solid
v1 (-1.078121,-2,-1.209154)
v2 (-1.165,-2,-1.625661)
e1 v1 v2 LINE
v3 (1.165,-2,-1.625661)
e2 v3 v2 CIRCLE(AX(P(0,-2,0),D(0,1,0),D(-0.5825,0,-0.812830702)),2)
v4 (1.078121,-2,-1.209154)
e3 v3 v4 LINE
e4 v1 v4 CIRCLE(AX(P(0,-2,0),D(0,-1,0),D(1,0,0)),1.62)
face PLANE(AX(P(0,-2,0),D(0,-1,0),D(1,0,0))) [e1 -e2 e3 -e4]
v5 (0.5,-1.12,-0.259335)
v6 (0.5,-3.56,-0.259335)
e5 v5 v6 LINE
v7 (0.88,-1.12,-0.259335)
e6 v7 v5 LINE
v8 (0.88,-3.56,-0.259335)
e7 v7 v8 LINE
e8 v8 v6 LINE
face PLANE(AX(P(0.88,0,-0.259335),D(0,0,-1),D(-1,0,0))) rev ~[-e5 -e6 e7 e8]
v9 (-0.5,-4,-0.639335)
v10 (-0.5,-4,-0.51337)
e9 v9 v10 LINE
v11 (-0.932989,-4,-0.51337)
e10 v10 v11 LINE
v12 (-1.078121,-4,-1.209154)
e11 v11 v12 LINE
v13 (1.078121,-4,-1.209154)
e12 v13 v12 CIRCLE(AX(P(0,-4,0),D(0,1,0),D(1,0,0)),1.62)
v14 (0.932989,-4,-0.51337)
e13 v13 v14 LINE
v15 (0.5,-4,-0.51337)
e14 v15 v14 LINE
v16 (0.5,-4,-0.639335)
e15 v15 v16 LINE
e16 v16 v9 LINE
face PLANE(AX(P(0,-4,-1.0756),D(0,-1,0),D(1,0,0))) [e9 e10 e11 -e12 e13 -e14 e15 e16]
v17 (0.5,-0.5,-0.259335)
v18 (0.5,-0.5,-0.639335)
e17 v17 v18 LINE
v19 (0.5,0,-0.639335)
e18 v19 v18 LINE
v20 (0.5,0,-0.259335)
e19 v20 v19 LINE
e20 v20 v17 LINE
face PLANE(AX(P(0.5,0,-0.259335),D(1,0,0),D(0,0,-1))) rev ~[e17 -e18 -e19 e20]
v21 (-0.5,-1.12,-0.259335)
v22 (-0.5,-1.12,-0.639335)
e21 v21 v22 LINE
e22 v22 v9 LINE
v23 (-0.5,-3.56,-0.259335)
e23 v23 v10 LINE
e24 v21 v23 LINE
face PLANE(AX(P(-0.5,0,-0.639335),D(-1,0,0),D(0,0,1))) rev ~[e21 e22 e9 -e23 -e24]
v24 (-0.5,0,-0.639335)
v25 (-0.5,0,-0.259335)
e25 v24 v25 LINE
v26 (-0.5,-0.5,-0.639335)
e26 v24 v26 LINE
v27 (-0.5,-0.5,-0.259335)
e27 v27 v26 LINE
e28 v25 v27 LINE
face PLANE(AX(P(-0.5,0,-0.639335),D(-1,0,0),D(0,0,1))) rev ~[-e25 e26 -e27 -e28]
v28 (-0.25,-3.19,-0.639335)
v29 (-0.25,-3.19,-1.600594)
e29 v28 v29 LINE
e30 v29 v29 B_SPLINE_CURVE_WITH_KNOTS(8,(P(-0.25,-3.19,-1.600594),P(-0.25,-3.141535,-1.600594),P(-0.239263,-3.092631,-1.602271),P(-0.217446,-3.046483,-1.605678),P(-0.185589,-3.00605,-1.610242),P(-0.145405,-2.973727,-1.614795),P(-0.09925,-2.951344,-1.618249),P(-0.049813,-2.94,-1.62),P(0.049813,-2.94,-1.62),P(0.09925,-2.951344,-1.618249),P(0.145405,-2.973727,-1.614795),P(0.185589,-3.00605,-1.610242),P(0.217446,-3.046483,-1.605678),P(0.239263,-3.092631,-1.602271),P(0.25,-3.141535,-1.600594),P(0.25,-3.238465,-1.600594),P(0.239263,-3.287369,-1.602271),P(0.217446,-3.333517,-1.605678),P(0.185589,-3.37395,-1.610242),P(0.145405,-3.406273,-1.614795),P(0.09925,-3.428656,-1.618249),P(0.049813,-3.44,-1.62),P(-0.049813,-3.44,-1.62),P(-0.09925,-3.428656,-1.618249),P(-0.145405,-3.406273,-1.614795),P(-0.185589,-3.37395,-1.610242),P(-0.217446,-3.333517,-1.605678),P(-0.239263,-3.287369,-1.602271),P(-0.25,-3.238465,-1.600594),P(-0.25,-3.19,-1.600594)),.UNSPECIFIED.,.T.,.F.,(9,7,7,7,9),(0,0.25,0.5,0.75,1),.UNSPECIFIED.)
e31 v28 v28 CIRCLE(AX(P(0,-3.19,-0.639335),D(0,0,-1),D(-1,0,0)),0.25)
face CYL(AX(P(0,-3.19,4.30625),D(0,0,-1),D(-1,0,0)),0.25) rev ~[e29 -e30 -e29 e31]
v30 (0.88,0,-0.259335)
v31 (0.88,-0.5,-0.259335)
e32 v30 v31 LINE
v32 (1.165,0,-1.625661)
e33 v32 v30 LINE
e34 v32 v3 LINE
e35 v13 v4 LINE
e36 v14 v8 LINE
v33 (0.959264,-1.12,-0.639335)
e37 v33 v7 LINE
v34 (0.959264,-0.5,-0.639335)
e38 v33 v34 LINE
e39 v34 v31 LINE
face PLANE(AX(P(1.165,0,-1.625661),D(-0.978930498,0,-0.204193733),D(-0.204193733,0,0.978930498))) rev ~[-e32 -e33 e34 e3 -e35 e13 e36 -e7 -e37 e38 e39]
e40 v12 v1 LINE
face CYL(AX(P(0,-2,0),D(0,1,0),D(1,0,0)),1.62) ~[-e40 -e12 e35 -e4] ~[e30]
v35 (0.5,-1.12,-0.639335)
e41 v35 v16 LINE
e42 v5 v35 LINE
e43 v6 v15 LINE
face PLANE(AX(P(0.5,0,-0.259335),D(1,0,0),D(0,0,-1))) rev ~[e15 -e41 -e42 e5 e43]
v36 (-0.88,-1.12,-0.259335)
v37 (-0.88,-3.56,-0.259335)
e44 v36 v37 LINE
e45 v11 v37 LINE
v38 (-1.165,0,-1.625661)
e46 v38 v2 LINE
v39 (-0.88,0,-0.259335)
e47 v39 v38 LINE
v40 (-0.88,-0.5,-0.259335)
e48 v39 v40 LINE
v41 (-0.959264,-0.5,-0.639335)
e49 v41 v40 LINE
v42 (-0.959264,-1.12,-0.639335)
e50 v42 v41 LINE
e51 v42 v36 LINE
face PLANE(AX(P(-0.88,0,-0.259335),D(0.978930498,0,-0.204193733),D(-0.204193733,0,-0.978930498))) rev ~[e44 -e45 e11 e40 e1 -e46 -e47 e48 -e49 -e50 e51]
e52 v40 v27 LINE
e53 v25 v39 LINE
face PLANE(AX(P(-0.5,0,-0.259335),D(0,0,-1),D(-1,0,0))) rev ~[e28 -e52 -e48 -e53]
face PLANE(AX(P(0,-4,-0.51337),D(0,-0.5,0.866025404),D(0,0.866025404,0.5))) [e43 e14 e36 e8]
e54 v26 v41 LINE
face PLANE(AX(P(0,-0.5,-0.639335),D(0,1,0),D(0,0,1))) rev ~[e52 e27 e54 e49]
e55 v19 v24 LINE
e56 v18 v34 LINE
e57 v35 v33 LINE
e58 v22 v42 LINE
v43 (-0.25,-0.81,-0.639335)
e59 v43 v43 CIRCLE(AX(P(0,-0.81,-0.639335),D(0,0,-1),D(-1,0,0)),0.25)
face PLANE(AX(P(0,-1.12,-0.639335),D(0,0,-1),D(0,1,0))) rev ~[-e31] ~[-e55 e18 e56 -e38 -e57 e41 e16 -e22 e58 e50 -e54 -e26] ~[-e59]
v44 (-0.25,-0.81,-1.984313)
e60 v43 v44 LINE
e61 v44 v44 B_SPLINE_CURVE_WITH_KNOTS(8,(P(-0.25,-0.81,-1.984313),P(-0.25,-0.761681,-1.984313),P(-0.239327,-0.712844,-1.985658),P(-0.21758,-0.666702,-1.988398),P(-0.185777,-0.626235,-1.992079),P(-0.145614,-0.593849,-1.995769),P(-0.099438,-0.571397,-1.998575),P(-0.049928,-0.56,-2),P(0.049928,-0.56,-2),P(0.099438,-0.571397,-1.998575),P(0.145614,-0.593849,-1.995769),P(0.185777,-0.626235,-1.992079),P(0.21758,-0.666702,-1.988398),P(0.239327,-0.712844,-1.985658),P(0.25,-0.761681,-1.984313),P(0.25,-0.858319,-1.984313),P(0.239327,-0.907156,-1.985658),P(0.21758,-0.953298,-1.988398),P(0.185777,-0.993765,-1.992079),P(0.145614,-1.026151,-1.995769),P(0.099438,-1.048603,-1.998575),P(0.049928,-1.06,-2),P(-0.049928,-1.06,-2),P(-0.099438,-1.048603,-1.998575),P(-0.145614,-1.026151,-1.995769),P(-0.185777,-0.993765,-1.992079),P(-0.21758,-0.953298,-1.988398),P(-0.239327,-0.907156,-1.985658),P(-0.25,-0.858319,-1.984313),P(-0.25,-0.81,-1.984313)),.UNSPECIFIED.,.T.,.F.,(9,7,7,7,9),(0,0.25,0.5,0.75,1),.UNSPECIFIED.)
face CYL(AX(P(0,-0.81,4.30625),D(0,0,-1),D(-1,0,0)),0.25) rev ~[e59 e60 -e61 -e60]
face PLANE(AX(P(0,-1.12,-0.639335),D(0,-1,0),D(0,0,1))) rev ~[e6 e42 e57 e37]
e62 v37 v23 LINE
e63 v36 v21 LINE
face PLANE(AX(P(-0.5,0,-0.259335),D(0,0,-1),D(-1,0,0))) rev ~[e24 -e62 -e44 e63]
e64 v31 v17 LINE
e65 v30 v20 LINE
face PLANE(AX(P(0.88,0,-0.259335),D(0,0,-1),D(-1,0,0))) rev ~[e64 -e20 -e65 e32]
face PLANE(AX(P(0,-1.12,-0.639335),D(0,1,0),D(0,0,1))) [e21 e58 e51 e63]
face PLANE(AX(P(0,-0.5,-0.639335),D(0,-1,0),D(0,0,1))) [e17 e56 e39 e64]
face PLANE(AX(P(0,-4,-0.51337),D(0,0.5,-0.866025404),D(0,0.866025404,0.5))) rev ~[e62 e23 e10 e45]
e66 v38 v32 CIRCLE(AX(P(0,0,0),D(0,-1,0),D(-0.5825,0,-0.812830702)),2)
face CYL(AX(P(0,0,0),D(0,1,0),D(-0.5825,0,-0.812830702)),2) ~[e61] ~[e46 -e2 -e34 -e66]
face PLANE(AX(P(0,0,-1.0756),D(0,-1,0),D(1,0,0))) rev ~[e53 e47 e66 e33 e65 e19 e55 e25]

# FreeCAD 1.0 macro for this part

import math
import FreeCAD as App
import Part
import Sketcher
from FreeCAD import Vector
Q = App.Units.Quantity


def add_polygon(sketch, points):
    """Adds a closed chain of lines whose ends are joined by coincident constraints."""
    first, n = sketch.GeometryCount, len(points)
    for a, b in zip(points, points[1:] + points[:1]):
        sketch.addGeometry(Part.LineSegment(App.Vector(*a, 0), App.Vector(*b, 0)), False)
    for i in range(n):
        sketch.addConstraint(Sketcher.Constraint("Coincident", first + i, 2, first + (i + 1) % n, 1))

doc = App.newDocument("Part")
body = doc.addObject("PartDesign::Body", "Body")

# Sketch on XZ plane
sketch1 = doc.addObject("Sketcher::SketchObject", "Sketch")
body.addObject(sketch1)
sketch1.AttachmentSupport = (doc.XZ_Plane, [""])
sketch1.MapMode = "FlatFace"
sketch1.addGeometry([
    Part.LineSegment(Vector(-0.88, -0.26, 0), Vector(-1.17, -1.63, 0)),  # 0
    Part.ArcOfCircle(Part.Circle(Vector(0, 0, 0), Vector(0, 0, 1), 2), math.radians(-126), math.radians(-54)),  # 1
    Part.LineSegment(Vector(1.17, -1.63, 0), Vector(0.88, -0.26, 0)),  # 2
    Part.LineSegment(Vector(0.88, -0.26, 0), Vector(0.5, -0.26, 0)),  # 3
    Part.LineSegment(Vector(0.5, -0.26, 0), Vector(0.5, -0.64, 0)),  # 4
    Part.LineSegment(Vector(0.5, -0.64, 0), Vector(-0.5, -0.64, 0)),  # 5
    Part.LineSegment(Vector(-0.5, -0.64, 0), Vector(-0.5, -0.26, 0)),  # 6
    Part.LineSegment(Vector(-0.5, -0.26, 0), Vector(-0.88, -0.26, 0)),  # 7
], False)
sketch1.addConstraint([
    Sketcher.Constraint("Coincident", 0, 2, 1, 1),
    Sketcher.Constraint("Coincident", 1, 2, 2, 1),
    Sketcher.Constraint("Coincident", 2, 2, 3, 1),
    Sketcher.Constraint("Coincident", 3, 2, 4, 1),
    Sketcher.Constraint("Coincident", 4, 2, 5, 1),
    Sketcher.Constraint("Coincident", 5, 2, 6, 1),
    Sketcher.Constraint("Coincident", 6, 2, 7, 1),
    Sketcher.Constraint("Coincident", 7, 2, 0, 1),
    Sketcher.Constraint("Horizontal", 3),
    Sketcher.Constraint("Vertical", 4),
    Sketcher.Constraint("Horizontal", 5),
    Sketcher.Constraint("Vertical", 6),
    Sketcher.Constraint("Horizontal", 7),
    Sketcher.Constraint("Coincident", 1, 3, -1, 1),
    Sketcher.Constraint("Symmetric", 3, 2, 6, 2, -2),
    Sketcher.Constraint("Horizontal", 0, 2, 1, 2),
    Sketcher.Constraint("Equal", 3, 7),
    Sketcher.Constraint("Equal", 7, 4),
    Sketcher.Constraint("Radius", 1, Q("2 mm")),
    Sketcher.Constraint("DistanceX", 5, 2, 5, 1, Q("1 mm")),
    Sketcher.Constraint("DistanceX", 3, 2, 3, 1, Q("0.38 mm")),
    Sketcher.Constraint("DistanceX", 0, 2, 1, 2, Q("2.33 mm")),
    Sketcher.Constraint("Distance", 0, Q("1.395733 mm")),
])
pad1 = doc.addObject("PartDesign::Pad", "Pad")
body.addObject(pad1)
pad1.Profile = sketch1
pad1.Length = 4

# Sketch on YZ plane
sketch2 = doc.addObject("Sketcher::SketchObject", "Sketch001")
body.addObject(sketch2)
sketch2.AttachmentSupport = (doc.YZ_Plane, [""])
sketch2.MapMode = "FlatFace"
add_polygon(sketch2, [(-1.1, 0), (-1.1, -0.6), (-0.5, -0.6), (-0.5, 0)])  # lines 0-3
add_polygon(sketch2, [(-4, -0.5), (-3.1, 0), (-4, 0)])  # lines 4-6
sketch2.addConstraint([
    Sketcher.Constraint("Vertical", 0),
    Sketcher.Constraint("Horizontal", 1),
    Sketcher.Constraint("Vertical", 2),
    Sketcher.Constraint("Horizontal", 3),
    Sketcher.Constraint("Horizontal", 5),
    Sketcher.Constraint("Vertical", 6),
    Sketcher.Constraint("PointOnObject", 2, 2, -1),
    Sketcher.Constraint("PointOnObject", 4, 2, -1),
    Sketcher.Constraint("Angle", 4, Q("30 deg")),
    Sketcher.Constraint("DistanceX", 5, 2, -1, 1, Q("4 mm")),
    Sketcher.Constraint("DistanceX", 1, 1, 1, 2, Q("0.62 mm")),
    Sketcher.Constraint("DistanceX", 1, 2, -1, 1, Q("0.5 mm")),
    Sketcher.Constraint("DistanceY", 6, 2, 6, 1, Q("0.51337 mm")),
    Sketcher.Constraint("DistanceY", 0, 2, 0, 1, Q("0.639335 mm")),
])
pocket1 = doc.addObject("PartDesign::Pocket", "Pocket")
body.addObject(pocket1)
pocket1.Profile = sketch2
pocket1.Type = "ThroughAll"
pocket1.Midplane = True

# Sketch on XZ plane
sketch3 = doc.addObject("Sketcher::SketchObject", "Sketch002")
body.addObject(sketch3)
sketch3.AttachmentSupport = (doc.XZ_Plane, [""])
sketch3.MapMode = "FlatFace"
sketch3.AttachmentOffset = App.Placement(Vector(0, 0, 2), App.Rotation())
sketch3.addGeometry([
    Part.Circle(Vector(0, 0, 0), Vector(0, 0, 1), 2.5),
    Part.Circle(Vector(0, 0, 0), Vector(0, 0, 1), 1.6),
], False)
sketch3.addConstraint([
    Sketcher.Constraint("Coincident", 0, 3, -1, 1),
    Sketcher.Constraint("Coincident", 1, 3, -1, 1),
    Sketcher.Constraint("Diameter", 0, Q("5 mm")),
    Sketcher.Constraint("Diameter", 1, Q("3.24 mm")),
])
pocket2 = doc.addObject("PartDesign::Pocket", "Pocket001")
body.addObject(pocket2)
pocket2.Profile = sketch3
pocket2.Type = "ThroughAll"
pocket2.Reversed = True

# Sketch on XY plane
sketch4 = doc.addObject("Sketcher::SketchObject", "Sketch003")
body.addObject(sketch4)
sketch4.AttachmentSupport = (doc.XY_Plane, [""])
sketch4.MapMode = "FlatFace"
sketch4.AttachmentOffset = App.Placement(Vector(0, 0, -0.639335), App.Rotation())
sketch4.addGeometry([
    Part.Circle(Vector(0, -0.81, 0), Vector(0, 0, 1), 0.25),
    Part.Circle(Vector(0, -3.19, 0), Vector(0, 0, 1), 0.25),
], False)
sketch4.addConstraint([
    Sketcher.Constraint("Equal", 0, 1),
    Sketcher.Constraint("PointOnObject", 0, 3, -2),
    Sketcher.Constraint("PointOnObject", 1, 3, -2),
    Sketcher.Constraint("Diameter", 0, Q("0.5 mm")),
    Sketcher.Constraint("DistanceY", 0, 3, -1, 1, Q("0.81 mm")),
    Sketcher.Constraint("DistanceY", 1, 3, -1, 1, Q("3.19 mm")),
])
doc.recompute()
hole = doc.addObject("PartDesign::Hole", "Hole")
body.addObject(hole)
hole.Profile = sketch4
hole.ThreadType = "None"
hole.Diameter = 0.5
hole.DepthType = "ThroughAll"

doc.recompute()
